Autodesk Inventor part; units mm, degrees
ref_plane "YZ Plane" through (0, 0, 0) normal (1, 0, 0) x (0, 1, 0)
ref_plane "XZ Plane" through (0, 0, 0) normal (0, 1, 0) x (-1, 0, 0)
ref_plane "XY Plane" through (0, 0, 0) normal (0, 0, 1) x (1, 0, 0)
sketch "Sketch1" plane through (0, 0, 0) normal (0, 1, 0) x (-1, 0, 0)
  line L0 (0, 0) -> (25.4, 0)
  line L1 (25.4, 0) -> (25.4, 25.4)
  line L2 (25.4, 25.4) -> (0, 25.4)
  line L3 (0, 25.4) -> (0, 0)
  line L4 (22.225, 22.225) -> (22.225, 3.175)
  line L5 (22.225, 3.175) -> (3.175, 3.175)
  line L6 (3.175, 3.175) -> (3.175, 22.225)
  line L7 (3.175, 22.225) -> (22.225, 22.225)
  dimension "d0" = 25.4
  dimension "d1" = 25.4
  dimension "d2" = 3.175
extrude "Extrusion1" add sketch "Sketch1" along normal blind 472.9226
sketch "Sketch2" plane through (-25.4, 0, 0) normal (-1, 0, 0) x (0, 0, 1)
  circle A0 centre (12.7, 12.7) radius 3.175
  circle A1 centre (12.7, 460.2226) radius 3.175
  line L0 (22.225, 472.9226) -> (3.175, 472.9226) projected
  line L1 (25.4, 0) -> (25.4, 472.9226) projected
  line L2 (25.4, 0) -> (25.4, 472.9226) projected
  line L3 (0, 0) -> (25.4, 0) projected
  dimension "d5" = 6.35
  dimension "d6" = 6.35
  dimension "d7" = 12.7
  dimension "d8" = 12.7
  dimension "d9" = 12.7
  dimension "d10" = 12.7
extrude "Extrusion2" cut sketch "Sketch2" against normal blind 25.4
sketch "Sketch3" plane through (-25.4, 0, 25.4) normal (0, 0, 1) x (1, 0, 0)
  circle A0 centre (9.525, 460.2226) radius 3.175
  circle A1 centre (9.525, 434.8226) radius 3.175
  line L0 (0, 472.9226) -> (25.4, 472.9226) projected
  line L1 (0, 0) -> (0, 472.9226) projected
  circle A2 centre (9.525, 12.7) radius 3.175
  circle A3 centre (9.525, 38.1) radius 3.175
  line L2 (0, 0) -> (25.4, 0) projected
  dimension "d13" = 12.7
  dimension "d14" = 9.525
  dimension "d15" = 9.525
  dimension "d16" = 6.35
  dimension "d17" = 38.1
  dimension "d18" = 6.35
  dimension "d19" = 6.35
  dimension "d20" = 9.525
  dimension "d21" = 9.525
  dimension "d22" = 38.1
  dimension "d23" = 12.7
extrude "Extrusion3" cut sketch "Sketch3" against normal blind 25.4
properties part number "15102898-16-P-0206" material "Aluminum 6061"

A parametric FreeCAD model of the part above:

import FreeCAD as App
import Part
import Sketcher

V = App.Vector
Q = App.Units.Quantity

doc = App.newDocument("Part")
body = doc.addObject("PartDesign::Body", "Body")

# Sketch on XZ plane
sketch1 = doc.addObject("Sketcher::SketchObject", "Sketch")
body.addObject(sketch1)
sketch1.AttachmentSupport = (doc.XZ_Plane, [""])
sketch1.MapMode = "FlatFace"
sketch1.addGeometry([
    Part.LineSegment(V(0, 25, 0), V(0, 0, 0)),  # 0
    Part.LineSegment(V(0, 0, 0), V(-25, 0, 0)),  # 1
    Part.LineSegment(V(-25, 0, 0), V(-25, 25, 0)),  # 2
    Part.LineSegment(V(-25, 25, 0), V(0, 25, 0)),  # 3
    Part.LineSegment(V(-3, 22, 0), V(-22, 22, 0)),  # 4
    Part.LineSegment(V(-22, 22, 0), V(-22, 3, 0)),  # 5
    Part.LineSegment(V(-22, 3, 0), V(-3, 3, 0)),  # 6
    Part.LineSegment(V(-3, 3, 0), V(-3, 22, 0)),  # 7
], False)
sketch1.addConstraint([
    Sketcher.Constraint("Coincident", 0, 2, 1, 1),
    Sketcher.Constraint("Coincident", 1, 2, 2, 1),
    Sketcher.Constraint("Coincident", 2, 2, 3, 1),
    Sketcher.Constraint("Coincident", 3, 2, 0, 1),
    Sketcher.Constraint("Coincident", 4, 2, 5, 1),
    Sketcher.Constraint("Coincident", 5, 2, 6, 1),
    Sketcher.Constraint("Coincident", 6, 2, 7, 1),
    Sketcher.Constraint("Coincident", 7, 2, 4, 1),
    Sketcher.Constraint("Vertical", 0),
    Sketcher.Constraint("Horizontal", 1),
    Sketcher.Constraint("Vertical", 2),
    Sketcher.Constraint("Horizontal", 3),
    Sketcher.Constraint("Horizontal", 4),
    Sketcher.Constraint("Vertical", 5),
    Sketcher.Constraint("Horizontal", 6),
    Sketcher.Constraint("Vertical", 7),
    Sketcher.Constraint("Coincident", 0, 2, -1, 1),
    Sketcher.Constraint("Equal", 3, 0),
    Sketcher.Constraint("Equal", 6, 5),
    Sketcher.Constraint("DistanceX", 1, 2, 1, 1, Q("1 in")),
    Sketcher.Constraint("DistanceY", -1, 1, 5, 2, Q("0.125 in")),
    Sketcher.Constraint("DistanceX", 6, 2, -1, 1, Q("0.125 in")),
    Sketcher.Constraint("DistanceX", 2, 2, 4, 2, Q("0.125 in")),
])
pad1 = doc.addObject("PartDesign::Pad", "Pad")
body.addObject(pad1)
pad1.Profile = sketch1
pad1.Length = Q("18.619 in")
pad1.Reversed = True

# Sketch on YZ plane
sketch2 = doc.addObject("Sketcher::SketchObject", "Sketch001")
body.addObject(sketch2)
sketch2.AttachmentSupport = (doc.YZ_Plane, [""])
sketch2.MapMode = "FlatFace"
sketch2.AttachmentOffset = App.Placement(V(0, 0, -1 * 25.4), App.Rotation())
sketch2.addGeometry([
    Part.Circle(V(12.7, 12.7, 0), V(0, 0, 1), 3.2),
    Part.Circle(V(460.2, 12.7, 0), V(0, 0, 1), 3.2),
], False)
sketch2.addConstraint([
    Sketcher.Constraint("Equal", 0, 1),
    Sketcher.Constraint("Horizontal", 0, 3, 1, 3),
    Sketcher.Constraint("Diameter", 0, Q("0.25 in")),
    Sketcher.Constraint("DistanceX", -1, 1, 0, 3, Q("0.5 in")),
    Sketcher.Constraint("DistanceY", -1, 1, 0, 3, Q("0.5 in")),
    Sketcher.Constraint("DistanceX", -1, 1, 1, 3, Q("18.119 in")),
])
pocket1 = doc.addObject("PartDesign::Pocket", "Pocket")
body.addObject(pocket1)
pocket1.Profile = sketch2
pocket1.Length = Q("1 in")
pocket1.Reversed = True

# Sketch on XY plane
sketch3 = doc.addObject("Sketcher::SketchObject", "Sketch002")
body.addObject(sketch3)
sketch3.AttachmentSupport = (doc.XY_Plane, [""])
sketch3.MapMode = "FlatFace"
sketch3.AttachmentOffset = App.Placement(V(0, 0, 1 * 25.4), App.Rotation())
sketch3.addGeometry([
    Part.Circle(V(-15.9, 460.2, 0), V(0, 0, 1), 3.2),
    Part.Circle(V(-15.9, 434.8, 0), V(0, 0, 1), 3.2),
    Part.Circle(V(-15.9, 12.7, 0), V(0, 0, 1), 3.2),
    Part.Circle(V(-15.9, 38.1, 0), V(0, 0, 1), 3.2),
], False)
sketch3.addConstraint([
    Sketcher.Constraint("Equal", 0, 1),
    Sketcher.Constraint("Equal", 1, 2),
    Sketcher.Constraint("Equal", 2, 3),
    Sketcher.Constraint("Vertical", 0, 3, 1, 3),
    Sketcher.Constraint("Vertical", 1, 3, 2, 3),
    Sketcher.Constraint("Vertical", 2, 3, 3, 3),
    Sketcher.Constraint("Diameter", 0, Q("0.25 in")),
    Sketcher.Constraint("DistanceY", -1, 1, 2, 3, Q("0.5 in")),
    Sketcher.Constraint("DistanceY", -1, 1, 3, 3, Q("1.5 in")),
    Sketcher.Constraint("DistanceY", 1, 3, 0, 3, Q("1 in")),
    Sketcher.Constraint("DistanceX", 0, 3, -1, 1, Q("0.625 in")),
    Sketcher.Constraint("DistanceY", -1, 1, 0, 3, Q("18.119 in")),
])
pocket2 = doc.addObject("PartDesign::Pocket", "Pocket001")
body.addObject(pocket2)
pocket2.Profile = sketch3
pocket2.Length = Q("1 in")

doc.recompute()
